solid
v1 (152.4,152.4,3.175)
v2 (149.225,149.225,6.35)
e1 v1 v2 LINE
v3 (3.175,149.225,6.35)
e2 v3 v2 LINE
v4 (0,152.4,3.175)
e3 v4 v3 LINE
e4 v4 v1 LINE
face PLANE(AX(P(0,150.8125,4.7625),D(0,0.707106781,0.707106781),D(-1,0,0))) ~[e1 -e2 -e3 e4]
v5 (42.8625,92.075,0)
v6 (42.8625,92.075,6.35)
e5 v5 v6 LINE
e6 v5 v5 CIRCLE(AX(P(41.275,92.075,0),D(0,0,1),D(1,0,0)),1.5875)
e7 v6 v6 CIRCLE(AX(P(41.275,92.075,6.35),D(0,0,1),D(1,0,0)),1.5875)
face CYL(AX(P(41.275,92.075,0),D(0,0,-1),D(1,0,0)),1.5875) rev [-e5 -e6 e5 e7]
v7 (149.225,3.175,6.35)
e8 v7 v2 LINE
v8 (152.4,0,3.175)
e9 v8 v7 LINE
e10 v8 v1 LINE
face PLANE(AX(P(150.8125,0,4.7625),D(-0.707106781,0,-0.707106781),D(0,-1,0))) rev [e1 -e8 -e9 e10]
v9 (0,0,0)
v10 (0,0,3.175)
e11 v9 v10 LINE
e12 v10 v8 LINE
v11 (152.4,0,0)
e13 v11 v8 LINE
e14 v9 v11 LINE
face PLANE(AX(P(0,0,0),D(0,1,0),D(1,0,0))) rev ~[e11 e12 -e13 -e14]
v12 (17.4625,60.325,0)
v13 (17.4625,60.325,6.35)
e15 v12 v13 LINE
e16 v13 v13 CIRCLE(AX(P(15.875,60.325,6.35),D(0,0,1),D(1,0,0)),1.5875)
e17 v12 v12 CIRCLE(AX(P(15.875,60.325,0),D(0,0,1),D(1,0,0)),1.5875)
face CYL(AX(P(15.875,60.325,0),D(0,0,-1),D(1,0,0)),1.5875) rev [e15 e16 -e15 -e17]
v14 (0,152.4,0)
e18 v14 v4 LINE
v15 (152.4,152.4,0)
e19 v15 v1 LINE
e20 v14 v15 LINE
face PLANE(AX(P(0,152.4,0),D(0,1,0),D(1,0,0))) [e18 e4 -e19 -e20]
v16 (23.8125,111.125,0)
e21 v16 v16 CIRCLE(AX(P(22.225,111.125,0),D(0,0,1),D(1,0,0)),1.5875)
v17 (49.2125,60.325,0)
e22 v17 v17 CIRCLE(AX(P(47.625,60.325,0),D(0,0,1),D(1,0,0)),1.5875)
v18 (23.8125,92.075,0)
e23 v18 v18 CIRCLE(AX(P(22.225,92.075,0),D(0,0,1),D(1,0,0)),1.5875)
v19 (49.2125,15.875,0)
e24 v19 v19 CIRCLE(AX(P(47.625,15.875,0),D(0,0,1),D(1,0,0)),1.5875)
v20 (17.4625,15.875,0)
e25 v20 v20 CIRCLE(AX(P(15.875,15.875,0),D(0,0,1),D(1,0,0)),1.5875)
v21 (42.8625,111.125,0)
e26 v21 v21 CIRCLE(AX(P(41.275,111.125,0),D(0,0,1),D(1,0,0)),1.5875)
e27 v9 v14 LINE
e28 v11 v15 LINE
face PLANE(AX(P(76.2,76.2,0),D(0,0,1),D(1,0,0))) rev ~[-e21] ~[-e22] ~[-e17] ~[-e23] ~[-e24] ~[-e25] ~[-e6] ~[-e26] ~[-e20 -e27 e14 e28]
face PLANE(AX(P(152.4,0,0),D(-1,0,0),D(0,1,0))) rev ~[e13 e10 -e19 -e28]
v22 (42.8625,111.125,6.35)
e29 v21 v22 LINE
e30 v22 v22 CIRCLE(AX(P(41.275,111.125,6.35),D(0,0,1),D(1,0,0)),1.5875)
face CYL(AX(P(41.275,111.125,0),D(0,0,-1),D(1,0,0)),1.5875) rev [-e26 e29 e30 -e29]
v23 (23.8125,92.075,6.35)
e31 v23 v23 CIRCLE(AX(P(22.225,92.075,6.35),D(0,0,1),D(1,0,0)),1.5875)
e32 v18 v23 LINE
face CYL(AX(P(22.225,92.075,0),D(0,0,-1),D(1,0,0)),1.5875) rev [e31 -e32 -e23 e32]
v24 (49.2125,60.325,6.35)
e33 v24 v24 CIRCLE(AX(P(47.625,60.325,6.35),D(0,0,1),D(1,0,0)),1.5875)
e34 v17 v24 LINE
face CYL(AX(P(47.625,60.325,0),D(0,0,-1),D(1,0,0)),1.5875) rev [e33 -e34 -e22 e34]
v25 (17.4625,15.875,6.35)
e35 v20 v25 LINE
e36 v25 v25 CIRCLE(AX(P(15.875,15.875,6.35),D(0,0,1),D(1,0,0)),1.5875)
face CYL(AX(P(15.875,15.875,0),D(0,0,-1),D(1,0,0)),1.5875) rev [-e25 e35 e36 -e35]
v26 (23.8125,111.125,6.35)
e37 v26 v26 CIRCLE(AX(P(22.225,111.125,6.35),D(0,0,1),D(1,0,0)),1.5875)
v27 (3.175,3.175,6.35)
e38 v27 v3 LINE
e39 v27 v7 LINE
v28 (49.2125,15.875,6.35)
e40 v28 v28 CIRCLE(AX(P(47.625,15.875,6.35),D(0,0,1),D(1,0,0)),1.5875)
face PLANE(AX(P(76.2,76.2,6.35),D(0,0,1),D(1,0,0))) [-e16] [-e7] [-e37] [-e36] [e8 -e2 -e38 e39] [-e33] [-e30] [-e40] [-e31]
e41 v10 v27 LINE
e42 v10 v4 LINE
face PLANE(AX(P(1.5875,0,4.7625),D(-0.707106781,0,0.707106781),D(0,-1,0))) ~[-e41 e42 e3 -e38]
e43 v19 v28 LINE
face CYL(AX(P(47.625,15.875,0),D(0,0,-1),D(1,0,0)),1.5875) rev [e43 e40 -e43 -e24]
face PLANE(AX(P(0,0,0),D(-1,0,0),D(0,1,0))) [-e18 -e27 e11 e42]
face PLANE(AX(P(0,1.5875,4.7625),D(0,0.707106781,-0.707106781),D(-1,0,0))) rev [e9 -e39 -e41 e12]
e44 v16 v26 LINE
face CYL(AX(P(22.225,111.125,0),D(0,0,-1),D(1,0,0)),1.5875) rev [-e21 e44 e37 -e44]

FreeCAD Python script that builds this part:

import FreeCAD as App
import Part
import Sketcher
from FreeCAD import Vector
Q = App.Units.Quantity


def edges_at(feature, points):
    """Names of the edges that pass closest to the given points."""
    edges = feature.Shape.Edges
    near = lambda p: min(range(len(edges)), key=lambda i: edges[i].distToShape(Part.Vertex(*p))[0])
    return sorted({f"Edge{near(p) + 1}" for p in points})

doc = App.newDocument("Part")
params = doc.addObject("Spreadsheet::Sheet", "Params")
for row, (alias, value) in enumerate([
    ("sketch1_width", "6 in"),
    ("sketch1_diameter", "0.125 in"),
    ("pad1_length", "0.25 in"),
    ("chamfer_size", "0.125 in"),
], start=1):
    params.set(f"A{row}", alias)
    params.set(f"B{row}", "=" + value)
    params.setAlias(f"B{row}", alias)

body = doc.addObject("PartDesign::Body", "Body")

# Sketch on XY plane
sketch1 = body.newObject("Sketcher::SketchObject", "Sketch")
sketch1.AttachmentSupport = (doc.getObject("XY_Plane"), [""])
sketch1.MapMode = "FlatFace"
sketch1.addGeometry([
    Part.LineSegment(Vector(0, 152.4, 0), Vector(0, 0, 0)),  # 0
    Part.LineSegment(Vector(0, 0, 0), Vector(152.4, 0, 0)),  # 1
    Part.LineSegment(Vector(152.4, 0, 0), Vector(152.4, 152.4, 0)),  # 2
    Part.LineSegment(Vector(152.4, 152.4, 0), Vector(0, 152.4, 0)),  # 3
    Part.Circle(Vector(15.9, 15.9, 0), Vector(0, 0, 1), 1.6),  # 4
    Part.Circle(Vector(15.9, 60.3, 0), Vector(0, 0, 1), 1.6),  # 5
    Part.Circle(Vector(47.6, 15.9, 0), Vector(0, 0, 1), 1.6),  # 6
    Part.Circle(Vector(47.6, 60.3, 0), Vector(0, 0, 1), 1.6),  # 7
    Part.Circle(Vector(22.2, 92.1, 0), Vector(0, 0, 1), 1.6),  # 8
    Part.Circle(Vector(22.2, 111.1, 0), Vector(0, 0, 1), 1.6),  # 9
    Part.Circle(Vector(41.3, 92.1, 0), Vector(0, 0, 1), 1.6),  # 10
    Part.Circle(Vector(41.3, 111.1, 0), Vector(0, 0, 1), 1.6),  # 11
], False)
sketch1.addConstraint([
    Sketcher.Constraint("Coincident", 0, 2, 1, 1),
    Sketcher.Constraint("Coincident", 1, 2, 2, 1),
    Sketcher.Constraint("Coincident", 2, 2, 3, 1),
    Sketcher.Constraint("Coincident", 3, 2, 0, 1),
    Sketcher.Constraint("Vertical", 0),
    Sketcher.Constraint("Horizontal", 1),
    Sketcher.Constraint("Vertical", 2),
    Sketcher.Constraint("Horizontal", 3),
    Sketcher.Constraint("Coincident", 0, 2, -1, 1),
    Sketcher.Constraint("Equal", 4, 5),
    Sketcher.Constraint("Equal", 5, 6),
    Sketcher.Constraint("Equal", 6, 7),
    Sketcher.Constraint("Equal", 7, 8),
    Sketcher.Constraint("Equal", 8, 9),
    Sketcher.Constraint("Equal", 9, 10),
    Sketcher.Constraint("Equal", 10, 11),
    Sketcher.Constraint("Horizontal", 4, 3, 6, 3),
    Sketcher.Constraint("Horizontal", 5, 3, 7, 3),
    Sketcher.Constraint("Horizontal", 8, 3, 10, 3),
    Sketcher.Constraint("Horizontal", 9, 3, 11, 3),
    Sketcher.Constraint("Vertical", 4, 3, 5, 3),
    Sketcher.Constraint("Vertical", 6, 3, 7, 3),
    Sketcher.Constraint("Vertical", 8, 3, 9, 3),
    Sketcher.Constraint("Vertical", 10, 3, 11, 3),
    Sketcher.Constraint("Equal", 3, 0),
    Sketcher.Constraint("DistanceX", 1, 1, 1, 2, Q("6 in")),
    Sketcher.Constraint("Diameter", 4, Q("0.125 in")),
    Sketcher.Constraint("DistanceX", 8, 3, 7, 3, Q("1 in")),
    Sketcher.Constraint("DistanceY", 4, 3, 8, 3, Q("3 in")),
    Sketcher.Constraint("DistanceY", 5, 3, 9, 3, Q("2 in")),
    Sketcher.Constraint("DistanceX", 5, 3, 10, 3, Q("1 in")),
    Sketcher.Constraint("DistanceY", 4, 3, 5, 3, Q("1.75 in")),
    Sketcher.Constraint("DistanceX", 4, 3, 6, 3, Q("1.25 in")),
    Sketcher.Constraint("DistanceX", -1, 1, 4, 3, Q("0.625 in")),
    Sketcher.Constraint("DistanceY", -1, 1, 4, 3, Q("0.625 in")),
])
sketch1.setExpression("Constraints[25]", "Params.sketch1_width")
sketch1.setExpression("Constraints[26]", "Params.sketch1_diameter")
pad1 = body.newObject("PartDesign::Pad", "Pad")
pad1.Profile = sketch1
pad1.setExpression("Length", "Params.pad1_length")
doc.recompute()

chamfer = body.newObject("PartDesign::Chamfer", "Chamfer")
chamfer.Base = (pad1, edges_at(pad1, [
    (0, 76.2, 6.35),
    (76.2, 0, 6.35),
    (152.4, 76.2, 6.35),
    (76.2, 152.4, 6.35),
]))
chamfer.setExpression("Size", "Params.chamfer_size")

doc.recompute()
